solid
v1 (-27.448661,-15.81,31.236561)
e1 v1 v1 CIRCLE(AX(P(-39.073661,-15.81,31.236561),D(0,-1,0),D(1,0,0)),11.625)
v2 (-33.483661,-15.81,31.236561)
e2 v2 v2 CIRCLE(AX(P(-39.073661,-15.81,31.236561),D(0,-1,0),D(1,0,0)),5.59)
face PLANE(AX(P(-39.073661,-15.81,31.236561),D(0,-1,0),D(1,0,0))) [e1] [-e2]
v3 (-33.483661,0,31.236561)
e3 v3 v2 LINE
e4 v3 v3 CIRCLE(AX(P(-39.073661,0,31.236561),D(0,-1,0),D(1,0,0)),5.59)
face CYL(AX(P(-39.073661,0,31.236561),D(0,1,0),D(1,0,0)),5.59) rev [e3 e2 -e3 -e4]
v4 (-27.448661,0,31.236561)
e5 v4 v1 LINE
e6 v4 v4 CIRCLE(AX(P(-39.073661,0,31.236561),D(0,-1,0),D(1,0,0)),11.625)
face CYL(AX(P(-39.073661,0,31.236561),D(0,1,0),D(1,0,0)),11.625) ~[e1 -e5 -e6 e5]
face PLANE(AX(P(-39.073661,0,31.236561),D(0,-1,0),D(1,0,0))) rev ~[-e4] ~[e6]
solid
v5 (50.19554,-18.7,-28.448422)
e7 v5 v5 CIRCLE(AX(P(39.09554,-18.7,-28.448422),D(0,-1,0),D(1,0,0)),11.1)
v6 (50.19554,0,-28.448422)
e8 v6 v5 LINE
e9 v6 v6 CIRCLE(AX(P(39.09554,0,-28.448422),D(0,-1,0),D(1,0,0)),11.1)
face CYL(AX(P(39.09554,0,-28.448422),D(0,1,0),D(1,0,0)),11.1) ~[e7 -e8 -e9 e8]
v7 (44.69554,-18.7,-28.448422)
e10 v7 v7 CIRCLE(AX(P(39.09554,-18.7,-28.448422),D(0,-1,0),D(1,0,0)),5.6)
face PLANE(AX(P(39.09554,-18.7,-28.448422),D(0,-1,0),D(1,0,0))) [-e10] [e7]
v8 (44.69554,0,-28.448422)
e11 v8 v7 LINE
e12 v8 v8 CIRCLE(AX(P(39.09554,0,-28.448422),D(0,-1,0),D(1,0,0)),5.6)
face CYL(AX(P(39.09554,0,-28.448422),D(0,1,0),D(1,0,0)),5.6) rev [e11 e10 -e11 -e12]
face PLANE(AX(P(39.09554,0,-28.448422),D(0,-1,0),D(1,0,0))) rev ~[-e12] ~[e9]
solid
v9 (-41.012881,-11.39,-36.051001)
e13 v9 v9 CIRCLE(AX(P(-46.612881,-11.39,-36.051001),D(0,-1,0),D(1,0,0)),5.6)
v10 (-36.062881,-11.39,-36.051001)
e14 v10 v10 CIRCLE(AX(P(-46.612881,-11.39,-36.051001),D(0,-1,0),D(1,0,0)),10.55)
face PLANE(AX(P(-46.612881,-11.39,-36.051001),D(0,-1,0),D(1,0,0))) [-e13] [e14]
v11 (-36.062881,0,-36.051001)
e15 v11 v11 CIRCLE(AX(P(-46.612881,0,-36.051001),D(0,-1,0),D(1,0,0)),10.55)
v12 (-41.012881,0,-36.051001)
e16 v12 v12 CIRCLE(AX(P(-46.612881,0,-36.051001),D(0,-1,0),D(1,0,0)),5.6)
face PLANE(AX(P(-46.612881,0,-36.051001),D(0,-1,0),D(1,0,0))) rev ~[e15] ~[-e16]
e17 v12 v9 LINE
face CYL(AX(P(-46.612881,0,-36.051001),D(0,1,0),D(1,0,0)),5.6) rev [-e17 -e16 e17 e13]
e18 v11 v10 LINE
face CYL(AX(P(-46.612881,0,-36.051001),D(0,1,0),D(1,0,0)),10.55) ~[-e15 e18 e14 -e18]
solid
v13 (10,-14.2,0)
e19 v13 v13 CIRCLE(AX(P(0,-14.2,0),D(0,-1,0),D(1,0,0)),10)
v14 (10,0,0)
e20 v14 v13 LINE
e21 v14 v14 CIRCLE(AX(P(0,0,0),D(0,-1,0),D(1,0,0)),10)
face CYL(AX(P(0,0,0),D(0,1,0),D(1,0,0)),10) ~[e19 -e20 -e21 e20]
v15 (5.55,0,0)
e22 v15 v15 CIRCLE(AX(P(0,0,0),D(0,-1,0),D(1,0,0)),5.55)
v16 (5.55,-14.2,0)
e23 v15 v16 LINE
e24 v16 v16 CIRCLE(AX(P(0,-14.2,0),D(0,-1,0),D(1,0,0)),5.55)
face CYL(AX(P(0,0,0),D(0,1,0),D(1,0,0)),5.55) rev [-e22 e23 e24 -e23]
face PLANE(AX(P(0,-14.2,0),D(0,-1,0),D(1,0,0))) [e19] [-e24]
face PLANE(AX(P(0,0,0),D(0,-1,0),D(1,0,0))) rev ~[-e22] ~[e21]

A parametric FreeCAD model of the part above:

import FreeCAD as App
import Part
import Sketcher

doc = App.newDocument("Part")
body = doc.addObject("PartDesign::Body", "Body")

sketch1 = body.newObject("Sketcher::SketchObject", "Sketch")
sketch1.AttachmentSupport = (doc.getObject("XZ_Plane"), [""])
sketch1.MapMode = "FlatFace"
sketch1.addGeometry([
    Part.Circle(App.Vector(0, 0, 0), App.Vector(0, 0, 1), 10),
    Part.Circle(App.Vector(0, 0, 0), App.Vector(0, 0, 1), 5.55),
], False)
sketch1.addConstraint([
    Sketcher.Constraint("Coincident", 0, 3, -1, 1),
    Sketcher.Constraint("Coincident", 1, 3, -1, 1),
    Sketcher.Constraint("Diameter", 0, 20.0),
    Sketcher.Constraint("Diameter", 1, 11.1),
])
pad1 = body.newObject("PartDesign::Pad", "Pad")
pad1.Profile = sketch1
pad1.Length = 14.2
body2 = doc.addObject("PartDesign::Body", "Body001")

sketch2 = body2.newObject("Sketcher::SketchObject", "Sketch001")
sketch2.AttachmentSupport = (doc.getObject("XZ_Plane001"), [""])
sketch2.MapMode = "FlatFace"
sketch2.addGeometry([
    Part.Circle(App.Vector(-39.073661, 31.236561, 0), App.Vector(0, 0, 1), 11.625),
    Part.Circle(App.Vector(-39.073661, 31.236561, 0), App.Vector(0, 0, 1), 5.59),
], False)
sketch2.addConstraint([
    Sketcher.Constraint("Coincident", 1, 3, 0, 3),
    Sketcher.Constraint("Diameter", 0, 23.25),
    Sketcher.Constraint("Diameter", 1, 11.18),
    Sketcher.Constraint("DistanceX", 0, 3, -1, 1, 39.073661),
    Sketcher.Constraint("DistanceY", -1, 1, 0, 3, 31.236561),
])
pad2 = body2.newObject("PartDesign::Pad", "Pad001")
pad2.Profile = sketch2
pad2.Length = 15.81
body3 = doc.addObject("PartDesign::Body", "Body002")

sketch3 = body3.newObject("Sketcher::SketchObject", "Sketch002")
sketch3.AttachmentSupport = (doc.getObject("XZ_Plane002"), [""])
sketch3.MapMode = "FlatFace"
sketch3.addGeometry([
    Part.Circle(App.Vector(-46.612881, -36.051001, 0), App.Vector(0, 0, 1), 10.55),
    Part.Circle(App.Vector(-46.612881, -36.051001, 0), App.Vector(0, 0, 1), 5.6),
], False)
sketch3.addConstraint([
    Sketcher.Constraint("Coincident", 1, 3, 0, 3),
    Sketcher.Constraint("Diameter", 0, 21.1),
    Sketcher.Constraint("Diameter", 1, 11.2),
    Sketcher.Constraint("DistanceY", 0, 3, -1, 1, 36.051001),
    Sketcher.Constraint("DistanceX", 0, 3, -1, 1, 46.612881),
])
pad3 = body3.newObject("PartDesign::Pad", "Pad002")
pad3.Profile = sketch3
pad3.Length = 11.39
body4 = doc.addObject("PartDesign::Body", "Body003")

sketch4 = body4.newObject("Sketcher::SketchObject", "Sketch003")
sketch4.AttachmentSupport = (doc.getObject("XZ_Plane003"), [""])
sketch4.MapMode = "FlatFace"
sketch4.addGeometry([
    Part.Circle(App.Vector(39.09554, -28.448422, 0), App.Vector(0, 0, 1), 11.1),
    Part.Circle(App.Vector(39.09554, -28.448422, 0), App.Vector(0, 0, 1), 5.6),
], False)
sketch4.addConstraint([
    Sketcher.Constraint("Coincident", 1, 3, 0, 3),
    Sketcher.Constraint("Diameter", 0, 22.2),
    Sketcher.Constraint("Diameter", 1, 11.2),
    Sketcher.Constraint("DistanceX", -1, 1, 0, 3, 39.09554),
    Sketcher.Constraint("DistanceY", 0, 3, -1, 1, 28.448422),
])
pad4 = body4.newObject("PartDesign::Pad", "Pad003")
pad4.Profile = sketch4
pad4.Length = 18.7

doc.recompute()
